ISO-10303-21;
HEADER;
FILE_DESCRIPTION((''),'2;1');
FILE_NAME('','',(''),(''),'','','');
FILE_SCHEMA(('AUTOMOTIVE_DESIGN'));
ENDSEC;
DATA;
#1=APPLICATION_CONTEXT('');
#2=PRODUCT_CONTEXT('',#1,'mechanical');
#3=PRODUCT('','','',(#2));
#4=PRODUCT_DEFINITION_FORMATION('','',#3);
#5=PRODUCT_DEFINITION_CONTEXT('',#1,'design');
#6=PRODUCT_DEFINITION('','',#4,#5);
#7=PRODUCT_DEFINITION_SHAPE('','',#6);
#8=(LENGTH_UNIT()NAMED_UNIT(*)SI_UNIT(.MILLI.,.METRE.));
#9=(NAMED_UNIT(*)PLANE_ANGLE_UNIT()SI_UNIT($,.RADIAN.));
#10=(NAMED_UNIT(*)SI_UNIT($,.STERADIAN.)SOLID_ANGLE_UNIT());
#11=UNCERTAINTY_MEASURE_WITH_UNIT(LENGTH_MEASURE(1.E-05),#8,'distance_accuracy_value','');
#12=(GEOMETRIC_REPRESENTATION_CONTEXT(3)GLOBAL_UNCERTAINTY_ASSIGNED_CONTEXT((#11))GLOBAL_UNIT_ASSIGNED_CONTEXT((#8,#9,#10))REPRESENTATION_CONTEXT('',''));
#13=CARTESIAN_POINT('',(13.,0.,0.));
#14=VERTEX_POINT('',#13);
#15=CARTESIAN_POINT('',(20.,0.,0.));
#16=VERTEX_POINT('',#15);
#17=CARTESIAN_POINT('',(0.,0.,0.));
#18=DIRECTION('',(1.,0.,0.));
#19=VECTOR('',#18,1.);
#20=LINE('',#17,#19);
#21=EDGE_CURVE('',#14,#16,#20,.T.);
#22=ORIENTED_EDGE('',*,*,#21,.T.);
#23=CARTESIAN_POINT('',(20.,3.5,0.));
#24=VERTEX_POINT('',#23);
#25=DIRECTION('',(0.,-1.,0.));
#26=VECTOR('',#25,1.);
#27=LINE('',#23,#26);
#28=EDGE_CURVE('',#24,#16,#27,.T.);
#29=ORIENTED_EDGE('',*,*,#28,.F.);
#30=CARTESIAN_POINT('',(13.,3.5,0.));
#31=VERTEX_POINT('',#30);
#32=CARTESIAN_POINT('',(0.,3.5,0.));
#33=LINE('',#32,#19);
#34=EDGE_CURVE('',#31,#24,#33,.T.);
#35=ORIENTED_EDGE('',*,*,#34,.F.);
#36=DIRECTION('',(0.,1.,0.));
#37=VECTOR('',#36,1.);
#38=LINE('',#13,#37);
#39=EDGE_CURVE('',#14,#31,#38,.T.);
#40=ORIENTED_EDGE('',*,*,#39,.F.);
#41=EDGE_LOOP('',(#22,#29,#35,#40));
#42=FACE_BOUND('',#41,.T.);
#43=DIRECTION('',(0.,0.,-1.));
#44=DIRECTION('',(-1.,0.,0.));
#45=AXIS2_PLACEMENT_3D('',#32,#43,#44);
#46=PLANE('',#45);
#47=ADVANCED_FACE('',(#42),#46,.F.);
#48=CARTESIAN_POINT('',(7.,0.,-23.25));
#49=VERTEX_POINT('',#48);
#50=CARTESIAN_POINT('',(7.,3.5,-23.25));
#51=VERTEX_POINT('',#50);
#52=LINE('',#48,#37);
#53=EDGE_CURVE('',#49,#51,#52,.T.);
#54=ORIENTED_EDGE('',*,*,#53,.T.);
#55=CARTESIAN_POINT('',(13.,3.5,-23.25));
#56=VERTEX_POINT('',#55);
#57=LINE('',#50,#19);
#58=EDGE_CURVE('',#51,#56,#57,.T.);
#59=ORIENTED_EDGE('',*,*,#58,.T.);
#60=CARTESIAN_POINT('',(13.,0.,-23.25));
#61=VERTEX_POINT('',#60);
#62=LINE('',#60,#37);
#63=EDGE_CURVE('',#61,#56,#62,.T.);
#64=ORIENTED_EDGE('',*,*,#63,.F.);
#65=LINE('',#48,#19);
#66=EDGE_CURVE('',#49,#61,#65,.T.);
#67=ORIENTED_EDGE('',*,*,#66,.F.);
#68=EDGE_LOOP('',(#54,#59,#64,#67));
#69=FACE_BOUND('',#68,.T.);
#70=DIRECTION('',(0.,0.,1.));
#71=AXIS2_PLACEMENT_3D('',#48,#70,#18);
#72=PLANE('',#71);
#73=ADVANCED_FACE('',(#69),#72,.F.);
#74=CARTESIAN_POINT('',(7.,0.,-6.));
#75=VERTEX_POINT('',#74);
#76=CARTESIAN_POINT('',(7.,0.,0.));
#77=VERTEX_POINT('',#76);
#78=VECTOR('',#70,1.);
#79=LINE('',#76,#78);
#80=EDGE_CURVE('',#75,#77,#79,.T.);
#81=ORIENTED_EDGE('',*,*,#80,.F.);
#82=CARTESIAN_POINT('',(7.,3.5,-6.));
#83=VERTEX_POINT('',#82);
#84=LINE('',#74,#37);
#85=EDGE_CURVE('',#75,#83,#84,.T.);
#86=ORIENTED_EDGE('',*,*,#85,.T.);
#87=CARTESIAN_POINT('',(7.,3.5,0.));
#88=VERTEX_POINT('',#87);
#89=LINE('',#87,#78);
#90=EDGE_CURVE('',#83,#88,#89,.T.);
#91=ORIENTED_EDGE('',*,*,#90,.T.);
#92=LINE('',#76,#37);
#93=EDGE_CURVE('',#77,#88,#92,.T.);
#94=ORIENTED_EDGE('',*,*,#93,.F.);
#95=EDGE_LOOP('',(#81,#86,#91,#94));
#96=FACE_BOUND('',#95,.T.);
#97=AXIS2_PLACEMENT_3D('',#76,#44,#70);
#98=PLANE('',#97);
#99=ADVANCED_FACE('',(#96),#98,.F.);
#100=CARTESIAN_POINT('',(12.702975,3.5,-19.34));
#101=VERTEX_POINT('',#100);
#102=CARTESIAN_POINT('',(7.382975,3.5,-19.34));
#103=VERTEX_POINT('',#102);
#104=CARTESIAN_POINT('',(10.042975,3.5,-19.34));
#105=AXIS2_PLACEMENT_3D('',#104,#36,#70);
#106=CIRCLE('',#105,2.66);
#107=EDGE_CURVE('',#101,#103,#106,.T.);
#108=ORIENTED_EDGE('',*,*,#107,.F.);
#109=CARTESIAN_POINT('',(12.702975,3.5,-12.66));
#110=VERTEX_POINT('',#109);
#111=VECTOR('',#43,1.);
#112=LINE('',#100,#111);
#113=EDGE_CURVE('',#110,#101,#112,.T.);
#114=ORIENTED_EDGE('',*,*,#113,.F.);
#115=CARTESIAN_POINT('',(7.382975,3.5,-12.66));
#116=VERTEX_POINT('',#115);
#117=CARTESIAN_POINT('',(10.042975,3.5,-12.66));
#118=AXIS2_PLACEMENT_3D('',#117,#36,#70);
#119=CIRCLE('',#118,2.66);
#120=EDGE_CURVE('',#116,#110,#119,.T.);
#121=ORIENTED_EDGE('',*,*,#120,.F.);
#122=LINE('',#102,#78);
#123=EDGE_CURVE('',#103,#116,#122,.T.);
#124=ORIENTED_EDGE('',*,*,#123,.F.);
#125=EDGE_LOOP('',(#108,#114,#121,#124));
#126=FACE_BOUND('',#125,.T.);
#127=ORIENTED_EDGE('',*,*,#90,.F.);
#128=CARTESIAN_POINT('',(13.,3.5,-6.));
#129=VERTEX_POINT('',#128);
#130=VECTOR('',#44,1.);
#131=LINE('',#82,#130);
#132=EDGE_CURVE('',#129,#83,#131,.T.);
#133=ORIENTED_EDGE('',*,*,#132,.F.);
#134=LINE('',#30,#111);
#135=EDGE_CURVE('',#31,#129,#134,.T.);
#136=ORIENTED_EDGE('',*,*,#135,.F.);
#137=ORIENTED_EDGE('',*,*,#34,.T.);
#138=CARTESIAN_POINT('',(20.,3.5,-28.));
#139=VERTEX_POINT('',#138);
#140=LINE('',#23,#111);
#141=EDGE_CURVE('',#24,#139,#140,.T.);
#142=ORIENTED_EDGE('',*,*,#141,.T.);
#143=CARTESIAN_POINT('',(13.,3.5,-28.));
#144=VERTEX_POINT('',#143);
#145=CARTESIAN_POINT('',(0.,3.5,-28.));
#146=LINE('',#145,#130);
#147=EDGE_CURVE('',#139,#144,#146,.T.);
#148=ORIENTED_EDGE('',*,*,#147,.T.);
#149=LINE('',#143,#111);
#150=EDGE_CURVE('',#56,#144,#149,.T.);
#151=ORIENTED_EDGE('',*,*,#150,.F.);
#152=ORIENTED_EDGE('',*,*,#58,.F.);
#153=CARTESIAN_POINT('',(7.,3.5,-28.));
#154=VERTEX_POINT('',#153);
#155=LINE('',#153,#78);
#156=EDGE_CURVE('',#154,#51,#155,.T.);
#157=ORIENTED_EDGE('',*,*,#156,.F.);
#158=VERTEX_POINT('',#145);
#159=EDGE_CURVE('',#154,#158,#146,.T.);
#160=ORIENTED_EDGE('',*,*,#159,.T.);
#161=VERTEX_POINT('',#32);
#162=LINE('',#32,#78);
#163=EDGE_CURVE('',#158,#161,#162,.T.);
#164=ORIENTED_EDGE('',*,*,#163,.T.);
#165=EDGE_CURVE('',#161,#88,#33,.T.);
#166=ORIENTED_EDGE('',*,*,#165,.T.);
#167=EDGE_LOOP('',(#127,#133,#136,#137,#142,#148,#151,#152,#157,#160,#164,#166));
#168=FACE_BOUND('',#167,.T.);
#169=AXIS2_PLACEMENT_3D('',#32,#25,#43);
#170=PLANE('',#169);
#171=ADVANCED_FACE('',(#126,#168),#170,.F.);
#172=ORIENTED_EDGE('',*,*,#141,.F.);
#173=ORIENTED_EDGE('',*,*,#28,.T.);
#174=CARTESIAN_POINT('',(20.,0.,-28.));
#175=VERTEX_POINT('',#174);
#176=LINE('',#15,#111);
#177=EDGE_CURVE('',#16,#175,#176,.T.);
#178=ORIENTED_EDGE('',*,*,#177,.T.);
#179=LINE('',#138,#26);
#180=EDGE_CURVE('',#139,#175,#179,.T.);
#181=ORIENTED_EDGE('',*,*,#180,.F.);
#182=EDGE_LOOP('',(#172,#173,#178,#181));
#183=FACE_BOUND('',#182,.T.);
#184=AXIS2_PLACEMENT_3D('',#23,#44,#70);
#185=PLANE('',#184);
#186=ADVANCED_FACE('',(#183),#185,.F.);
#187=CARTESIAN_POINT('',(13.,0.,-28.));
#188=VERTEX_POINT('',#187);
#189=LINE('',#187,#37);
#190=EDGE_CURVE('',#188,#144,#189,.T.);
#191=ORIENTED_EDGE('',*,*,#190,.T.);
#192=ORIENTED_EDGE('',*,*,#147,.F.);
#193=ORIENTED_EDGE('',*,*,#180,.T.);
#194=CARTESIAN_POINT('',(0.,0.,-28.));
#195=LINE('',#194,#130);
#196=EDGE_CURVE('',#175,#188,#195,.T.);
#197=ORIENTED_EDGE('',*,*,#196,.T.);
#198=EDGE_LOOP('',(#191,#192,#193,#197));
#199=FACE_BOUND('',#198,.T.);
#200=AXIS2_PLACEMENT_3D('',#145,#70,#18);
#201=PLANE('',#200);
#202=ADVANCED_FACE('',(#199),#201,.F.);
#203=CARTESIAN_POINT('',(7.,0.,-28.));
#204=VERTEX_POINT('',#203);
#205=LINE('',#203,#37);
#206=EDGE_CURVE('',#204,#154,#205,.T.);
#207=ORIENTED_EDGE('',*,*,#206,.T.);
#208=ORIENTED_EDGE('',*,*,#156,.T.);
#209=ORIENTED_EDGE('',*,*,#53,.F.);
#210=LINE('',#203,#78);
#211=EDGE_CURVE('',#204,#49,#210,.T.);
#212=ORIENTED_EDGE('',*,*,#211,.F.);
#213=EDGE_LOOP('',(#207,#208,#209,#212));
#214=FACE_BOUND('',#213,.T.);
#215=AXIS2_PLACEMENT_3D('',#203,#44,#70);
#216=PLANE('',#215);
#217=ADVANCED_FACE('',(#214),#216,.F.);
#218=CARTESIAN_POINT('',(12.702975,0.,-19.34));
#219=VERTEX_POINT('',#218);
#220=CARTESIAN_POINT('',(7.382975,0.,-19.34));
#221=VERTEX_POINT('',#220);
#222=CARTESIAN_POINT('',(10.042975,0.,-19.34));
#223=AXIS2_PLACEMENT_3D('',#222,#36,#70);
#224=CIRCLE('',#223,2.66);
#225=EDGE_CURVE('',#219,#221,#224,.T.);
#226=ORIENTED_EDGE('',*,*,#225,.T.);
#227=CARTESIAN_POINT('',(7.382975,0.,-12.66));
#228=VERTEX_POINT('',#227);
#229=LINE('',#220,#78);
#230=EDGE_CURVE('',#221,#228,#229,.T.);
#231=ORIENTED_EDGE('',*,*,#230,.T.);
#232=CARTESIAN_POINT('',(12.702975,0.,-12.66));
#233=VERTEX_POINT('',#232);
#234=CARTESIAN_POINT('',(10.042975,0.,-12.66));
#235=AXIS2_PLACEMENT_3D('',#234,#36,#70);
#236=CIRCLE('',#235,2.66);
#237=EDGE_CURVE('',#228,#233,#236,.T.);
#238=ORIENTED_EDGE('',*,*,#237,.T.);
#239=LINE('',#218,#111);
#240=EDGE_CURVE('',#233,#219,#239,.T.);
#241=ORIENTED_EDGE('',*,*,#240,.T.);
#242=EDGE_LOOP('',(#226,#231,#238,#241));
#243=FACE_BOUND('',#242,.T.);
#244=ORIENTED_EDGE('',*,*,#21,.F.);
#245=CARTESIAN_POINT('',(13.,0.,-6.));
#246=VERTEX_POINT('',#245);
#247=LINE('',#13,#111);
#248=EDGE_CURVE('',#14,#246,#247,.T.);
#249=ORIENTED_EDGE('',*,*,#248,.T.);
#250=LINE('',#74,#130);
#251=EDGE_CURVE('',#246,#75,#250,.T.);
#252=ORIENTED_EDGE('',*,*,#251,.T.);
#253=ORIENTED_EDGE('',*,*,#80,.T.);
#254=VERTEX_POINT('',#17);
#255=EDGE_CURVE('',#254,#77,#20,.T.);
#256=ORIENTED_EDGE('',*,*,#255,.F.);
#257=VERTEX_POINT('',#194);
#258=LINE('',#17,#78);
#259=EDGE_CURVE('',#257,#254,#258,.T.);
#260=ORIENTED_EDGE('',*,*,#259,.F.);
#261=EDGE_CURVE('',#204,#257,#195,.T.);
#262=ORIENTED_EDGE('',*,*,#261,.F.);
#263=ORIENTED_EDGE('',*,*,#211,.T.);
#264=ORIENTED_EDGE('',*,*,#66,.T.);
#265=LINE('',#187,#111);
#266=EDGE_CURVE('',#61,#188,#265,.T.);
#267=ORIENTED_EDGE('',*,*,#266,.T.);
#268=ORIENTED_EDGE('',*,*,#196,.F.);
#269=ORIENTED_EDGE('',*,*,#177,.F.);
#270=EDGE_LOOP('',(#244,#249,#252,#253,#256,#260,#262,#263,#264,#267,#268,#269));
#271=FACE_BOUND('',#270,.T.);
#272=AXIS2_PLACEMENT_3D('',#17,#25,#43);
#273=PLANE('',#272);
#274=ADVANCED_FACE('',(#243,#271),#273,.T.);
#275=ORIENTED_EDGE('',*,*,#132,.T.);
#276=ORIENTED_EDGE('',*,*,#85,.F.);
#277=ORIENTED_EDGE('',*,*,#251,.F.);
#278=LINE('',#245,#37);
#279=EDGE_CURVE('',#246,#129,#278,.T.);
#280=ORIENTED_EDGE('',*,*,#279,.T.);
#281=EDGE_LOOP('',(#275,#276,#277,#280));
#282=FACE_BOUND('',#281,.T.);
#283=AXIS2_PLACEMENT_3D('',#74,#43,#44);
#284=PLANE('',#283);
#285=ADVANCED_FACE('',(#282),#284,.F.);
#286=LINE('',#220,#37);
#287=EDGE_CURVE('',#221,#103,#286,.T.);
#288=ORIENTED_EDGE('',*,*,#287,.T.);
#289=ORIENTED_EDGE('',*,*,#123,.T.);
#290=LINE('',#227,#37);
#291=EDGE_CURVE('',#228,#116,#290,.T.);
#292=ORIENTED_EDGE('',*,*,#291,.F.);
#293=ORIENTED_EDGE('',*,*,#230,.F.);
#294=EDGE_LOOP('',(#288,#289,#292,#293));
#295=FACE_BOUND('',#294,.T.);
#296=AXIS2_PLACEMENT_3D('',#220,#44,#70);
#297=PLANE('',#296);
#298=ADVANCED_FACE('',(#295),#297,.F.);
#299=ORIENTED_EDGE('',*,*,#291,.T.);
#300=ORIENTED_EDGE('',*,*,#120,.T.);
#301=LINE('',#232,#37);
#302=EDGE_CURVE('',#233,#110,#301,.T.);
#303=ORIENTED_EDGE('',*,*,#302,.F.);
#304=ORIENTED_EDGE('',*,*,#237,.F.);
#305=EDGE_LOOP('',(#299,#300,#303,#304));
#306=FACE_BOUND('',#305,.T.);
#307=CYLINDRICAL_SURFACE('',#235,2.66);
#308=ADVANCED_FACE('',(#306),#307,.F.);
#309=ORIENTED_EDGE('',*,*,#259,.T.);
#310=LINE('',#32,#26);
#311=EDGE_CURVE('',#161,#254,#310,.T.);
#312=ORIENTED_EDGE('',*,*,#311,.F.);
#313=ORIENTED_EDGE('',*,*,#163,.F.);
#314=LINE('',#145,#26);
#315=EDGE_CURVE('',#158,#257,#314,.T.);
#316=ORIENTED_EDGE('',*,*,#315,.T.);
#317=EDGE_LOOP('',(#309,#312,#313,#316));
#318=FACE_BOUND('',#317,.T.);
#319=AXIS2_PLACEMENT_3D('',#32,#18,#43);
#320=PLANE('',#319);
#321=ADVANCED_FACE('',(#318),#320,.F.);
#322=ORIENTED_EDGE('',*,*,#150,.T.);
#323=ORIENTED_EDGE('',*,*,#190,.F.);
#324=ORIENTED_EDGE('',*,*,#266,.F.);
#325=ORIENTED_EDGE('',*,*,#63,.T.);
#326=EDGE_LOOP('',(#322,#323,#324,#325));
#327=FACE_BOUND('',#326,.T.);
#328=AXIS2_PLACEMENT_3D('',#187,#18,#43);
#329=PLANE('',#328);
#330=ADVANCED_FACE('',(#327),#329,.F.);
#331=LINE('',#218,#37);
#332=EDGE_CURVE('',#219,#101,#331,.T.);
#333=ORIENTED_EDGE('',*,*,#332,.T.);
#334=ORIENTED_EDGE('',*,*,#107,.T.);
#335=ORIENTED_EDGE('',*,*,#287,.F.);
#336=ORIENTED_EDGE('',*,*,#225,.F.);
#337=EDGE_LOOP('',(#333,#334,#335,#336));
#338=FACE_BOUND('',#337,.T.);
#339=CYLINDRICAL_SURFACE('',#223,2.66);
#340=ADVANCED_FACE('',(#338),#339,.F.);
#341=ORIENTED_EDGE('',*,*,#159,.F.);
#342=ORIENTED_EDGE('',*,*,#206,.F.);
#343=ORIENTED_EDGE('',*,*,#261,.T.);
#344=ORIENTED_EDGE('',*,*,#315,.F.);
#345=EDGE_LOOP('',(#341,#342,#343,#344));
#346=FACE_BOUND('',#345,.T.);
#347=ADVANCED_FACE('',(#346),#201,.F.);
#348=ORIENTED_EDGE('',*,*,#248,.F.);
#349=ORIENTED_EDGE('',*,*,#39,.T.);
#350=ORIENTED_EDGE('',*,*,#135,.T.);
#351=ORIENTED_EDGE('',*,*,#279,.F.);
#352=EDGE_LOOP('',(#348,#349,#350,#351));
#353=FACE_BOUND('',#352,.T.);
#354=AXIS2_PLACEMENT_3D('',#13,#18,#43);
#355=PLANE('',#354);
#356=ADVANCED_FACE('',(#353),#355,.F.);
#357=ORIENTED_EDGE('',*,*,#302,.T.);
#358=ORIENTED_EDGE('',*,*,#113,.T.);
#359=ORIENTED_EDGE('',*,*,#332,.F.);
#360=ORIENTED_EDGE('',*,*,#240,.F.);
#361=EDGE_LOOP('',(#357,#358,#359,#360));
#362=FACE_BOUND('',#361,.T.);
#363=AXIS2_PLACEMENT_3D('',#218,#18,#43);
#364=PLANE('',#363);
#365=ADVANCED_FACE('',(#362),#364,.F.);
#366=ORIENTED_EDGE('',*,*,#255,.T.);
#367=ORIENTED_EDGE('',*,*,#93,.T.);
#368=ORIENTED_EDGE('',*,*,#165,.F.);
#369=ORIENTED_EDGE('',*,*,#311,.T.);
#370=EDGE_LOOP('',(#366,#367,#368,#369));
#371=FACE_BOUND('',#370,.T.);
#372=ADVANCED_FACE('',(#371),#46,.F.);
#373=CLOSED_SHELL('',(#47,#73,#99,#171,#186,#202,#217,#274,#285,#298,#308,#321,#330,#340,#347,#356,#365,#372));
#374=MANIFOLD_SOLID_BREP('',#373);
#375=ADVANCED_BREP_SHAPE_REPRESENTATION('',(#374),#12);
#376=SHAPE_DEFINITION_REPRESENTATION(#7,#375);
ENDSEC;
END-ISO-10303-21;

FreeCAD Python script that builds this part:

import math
import FreeCAD as App
import Part
import Sketcher

V = App.Vector

doc = App.newDocument("Part")
params = doc.addObject("Spreadsheet::Sheet", "Params")
for row, (alias, value) in enumerate([
    ("sketch1_width", "20 mm"),
    ("sketch1_height", "28 mm"),
    ("pad1_length", "3.5 mm"),
    ("sketch2_width", "6 mm"),
    ("sketch2_height", "4.75 mm"),
    ("sketch3_radius", "2.66 mm"),
    ("sketch3_height", "6.68 mm"),
], start=1):
    params.set(f"A{row}", alias)
    params.set(f"B{row}", "=" + value)
    params.setAlias(f"B{row}", alias)

body = doc.addObject("PartDesign::Body", "Body")

# Sketch on XZ plane
sketch1 = doc.addObject("Sketcher::SketchObject", "Sketch")
body.addObject(sketch1)
sketch1.AttachmentSupport = (doc.XZ_Plane, [""])
sketch1.MapMode = "FlatFace"
sketch1.addGeometry(Part.LineSegment(V(0, -28, 0), V(0, 0, 0)), False)
sketch1.addGeometry(Part.LineSegment(V(0, 0, 0), V(20, 0, 0)), False)
sketch1.addGeometry(Part.LineSegment(V(20, 0, 0), V(20, -28, 0)), False)
sketch1.addGeometry(Part.LineSegment(V(20, -28, 0), V(0, -28, 0)), False)
sketch1.addConstraint(Sketcher.Constraint("Coincident", 0, 2, 1, 1))
sketch1.addConstraint(Sketcher.Constraint("Coincident", 1, 2, 2, 1))
sketch1.addConstraint(Sketcher.Constraint("Coincident", 2, 2, 3, 1))
sketch1.addConstraint(Sketcher.Constraint("Coincident", 3, 2, 0, 1))
sketch1.addConstraint(Sketcher.Constraint("Vertical", 0))
sketch1.addConstraint(Sketcher.Constraint("Horizontal", 1))
sketch1.addConstraint(Sketcher.Constraint("Vertical", 2))
sketch1.addConstraint(Sketcher.Constraint("Horizontal", 3))
sketch1.addConstraint(Sketcher.Constraint("Coincident", 0, 2, -1, 1))
sketch1.addConstraint(Sketcher.Constraint("DistanceX", 1, 1, 1, 2, 20.0))
sketch1.addConstraint(Sketcher.Constraint("DistanceY", 0, 1, 0, 2, 28.0))
sketch1.setExpression("Constraints[9]", "Params.sketch1_width")
sketch1.setExpression("Constraints[10]", "Params.sketch1_height")
pad1 = doc.addObject("PartDesign::Pad", "Pad")
body.addObject(pad1)
pad1.Profile = sketch1
pad1.setExpression("Length", "Params.pad1_length")
pad1.Reversed = True

# Sketch on XZ plane
sketch2 = doc.addObject("Sketcher::SketchObject", "Sketch001")
body.addObject(sketch2)
sketch2.AttachmentSupport = (doc.XZ_Plane, [""])
sketch2.MapMode = "FlatFace"
sketch2.AttachmentOffset = App.Placement(V(0, 0, -3.5), App.Rotation())
sketch2.addGeometry(Part.LineSegment(V(7, -28, 0), V(7, -23.2, 0)), False)
sketch2.addGeometry(Part.LineSegment(V(7, -23.2, 0), V(13, -23.2, 0)), False)
sketch2.addGeometry(Part.LineSegment(V(13, -23.2, 0), V(13, -28, 0)), False)
sketch2.addGeometry(Part.LineSegment(V(13, -28, 0), V(7, -28, 0)), False)
sketch2.addGeometry(Part.LineSegment(V(7, -6, 0), V(7, 0, 0)), False)
sketch2.addGeometry(Part.LineSegment(V(7, 0, 0), V(13, 0, 0)), False)
sketch2.addGeometry(Part.LineSegment(V(13, 0, 0), V(13, -6, 0)), False)
sketch2.addGeometry(Part.LineSegment(V(13, -6, 0), V(7, -6, 0)), False)
sketch2.addConstraint(Sketcher.Constraint("Coincident", 0, 2, 1, 1))
sketch2.addConstraint(Sketcher.Constraint("Coincident", 1, 2, 2, 1))
sketch2.addConstraint(Sketcher.Constraint("Coincident", 2, 2, 3, 1))
sketch2.addConstraint(Sketcher.Constraint("Coincident", 3, 2, 0, 1))
sketch2.addConstraint(Sketcher.Constraint("Coincident", 4, 2, 5, 1))
sketch2.addConstraint(Sketcher.Constraint("Coincident", 5, 2, 6, 1))
sketch2.addConstraint(Sketcher.Constraint("Coincident", 6, 2, 7, 1))
sketch2.addConstraint(Sketcher.Constraint("Coincident", 7, 2, 4, 1))
sketch2.addConstraint(Sketcher.Constraint("Vertical", 0))
sketch2.addConstraint(Sketcher.Constraint("Horizontal", 1))
sketch2.addConstraint(Sketcher.Constraint("Vertical", 2))
sketch2.addConstraint(Sketcher.Constraint("Horizontal", 3))
sketch2.addConstraint(Sketcher.Constraint("Vertical", 4))
sketch2.addConstraint(Sketcher.Constraint("Horizontal", 5))
sketch2.addConstraint(Sketcher.Constraint("Vertical", 6))
sketch2.addConstraint(Sketcher.Constraint("Horizontal", 7))
sketch2.addConstraint(Sketcher.Constraint("PointOnObject", 4, 2, -1))
sketch2.addConstraint(Sketcher.Constraint("Vertical", 3, 2, 4, 2))
sketch2.addConstraint(Sketcher.Constraint("Vertical", 2, 2, 5, 2))
sketch2.addConstraint(Sketcher.Constraint("Equal", 7, 4))
sketch2.addConstraint(Sketcher.Constraint("DistanceX", 1, 1, 1, 2, 6.0))
sketch2.addConstraint(Sketcher.Constraint("DistanceX", -1, 1, 0, 2, 7.0))
sketch2.addConstraint(Sketcher.Constraint("DistanceY", 2, 2, -1, 1, 28.0))
sketch2.addConstraint(Sketcher.Constraint("DistanceY", 0, 1, 0, 2, 4.75))
sketch2.setExpression("Constraints[20]", "Params.sketch2_width")
sketch2.setExpression("Constraints[23]", "Params.sketch2_height")
pocket1 = doc.addObject("PartDesign::Pocket", "Pocket")
body.addObject(pocket1)
pocket1.Profile = sketch2
pocket1.Type = "ThroughAll"
pocket1.Reversed = True

# Sketch on XZ plane
sketch3 = doc.addObject("Sketcher::SketchObject", "Sketch002")
body.addObject(sketch3)
sketch3.AttachmentSupport = (doc.XZ_Plane, [""])
sketch3.MapMode = "FlatFace"
sketch3.AttachmentOffset = App.Placement(V(0, 0, -3.5), App.Rotation())
sketch3.addGeometry(Part.LineSegment(V(12.7, -12.7, 0), V(12.7, -19.3, 0)), False)
sketch3.addGeometry(Part.ArcOfCircle(Part.Circle(V(10, -19.3, 0), V(0, 0, 1), 2.7), math.radians(180), math.radians(360)), False)
sketch3.addGeometry(Part.LineSegment(V(7.4, -19.3, 0), V(7.4, -12.7, 0)), False)
sketch3.addGeometry(Part.ArcOfCircle(Part.Circle(V(10, -12.7, 0), V(0, 0, 1), 2.7), math.radians(0), math.radians(180)), False)
sketch3.addConstraint(Sketcher.Constraint("Tangent", 0, 2, 1, 2))
sketch3.addConstraint(Sketcher.Constraint("Tangent", 1, 1, 2, 1))
sketch3.addConstraint(Sketcher.Constraint("Tangent", 2, 2, 3, 2))
sketch3.addConstraint(Sketcher.Constraint("Tangent", 3, 1, 0, 1))
sketch3.addConstraint(Sketcher.Constraint("Vertical", 0))
sketch3.addConstraint(Sketcher.Constraint("Vertical", 2))
sketch3.addConstraint(Sketcher.Constraint("Radius", 1, 2.66))
sketch3.addConstraint(Sketcher.Constraint("DistanceY", 0, 2, 0, 1, 6.68))
sketch3.addConstraint(Sketcher.Constraint("DistanceY", 1, 3, -1, 1, 19.34))
sketch3.addConstraint(Sketcher.Constraint("DistanceX", -1, 1, 1, 3, 10.042975))
sketch3.setExpression("Constraints[6]", "Params.sketch3_radius")
sketch3.setExpression("Constraints[7]", "Params.sketch3_height")
pocket2 = doc.addObject("PartDesign::Pocket", "Pocket001")
body.addObject(pocket2)
pocket2.Profile = sketch3
pocket2.Type = "ThroughAll"
pocket2.Reversed = True

doc.recompute()
